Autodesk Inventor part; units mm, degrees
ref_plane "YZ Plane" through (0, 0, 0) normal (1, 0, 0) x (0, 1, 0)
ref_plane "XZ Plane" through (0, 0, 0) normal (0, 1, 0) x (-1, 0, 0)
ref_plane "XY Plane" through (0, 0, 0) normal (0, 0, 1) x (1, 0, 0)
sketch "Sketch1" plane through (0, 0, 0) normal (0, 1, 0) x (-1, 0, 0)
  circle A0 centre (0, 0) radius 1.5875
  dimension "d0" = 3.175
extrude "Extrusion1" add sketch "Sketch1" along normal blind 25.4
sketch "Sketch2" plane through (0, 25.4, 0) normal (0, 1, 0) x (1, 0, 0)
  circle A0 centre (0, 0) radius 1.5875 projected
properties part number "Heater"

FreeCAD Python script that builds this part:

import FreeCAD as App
import Part
import Sketcher
from FreeCAD import Vector
Q = App.Units.Quantity

doc = App.newDocument("Part")
body = doc.addObject("PartDesign::Body", "Body")

sketch1 = doc.addObject("Sketcher::SketchObject", "Sketch")
body.addObject(sketch1)
sketch1.AttachmentSupport = (doc.XZ_Plane, [""])
sketch1.MapMode = "FlatFace"
sketch1.addGeometry(Part.Circle(Vector(0, 0, 0), Vector(0, 0, 1), 1.6), False)
sketch1.addConstraint(Sketcher.Constraint("Coincident", 0, 3, -1, 1))
sketch1.addConstraint(Sketcher.Constraint("Diameter", 0, Q("0.125 in")))
pad1 = doc.addObject("PartDesign::Pad", "Pad")
body.addObject(pad1)
pad1.Profile = sketch1
pad1.Length = Q("1 in")
pad1.Reversed = True

doc.recompute()
